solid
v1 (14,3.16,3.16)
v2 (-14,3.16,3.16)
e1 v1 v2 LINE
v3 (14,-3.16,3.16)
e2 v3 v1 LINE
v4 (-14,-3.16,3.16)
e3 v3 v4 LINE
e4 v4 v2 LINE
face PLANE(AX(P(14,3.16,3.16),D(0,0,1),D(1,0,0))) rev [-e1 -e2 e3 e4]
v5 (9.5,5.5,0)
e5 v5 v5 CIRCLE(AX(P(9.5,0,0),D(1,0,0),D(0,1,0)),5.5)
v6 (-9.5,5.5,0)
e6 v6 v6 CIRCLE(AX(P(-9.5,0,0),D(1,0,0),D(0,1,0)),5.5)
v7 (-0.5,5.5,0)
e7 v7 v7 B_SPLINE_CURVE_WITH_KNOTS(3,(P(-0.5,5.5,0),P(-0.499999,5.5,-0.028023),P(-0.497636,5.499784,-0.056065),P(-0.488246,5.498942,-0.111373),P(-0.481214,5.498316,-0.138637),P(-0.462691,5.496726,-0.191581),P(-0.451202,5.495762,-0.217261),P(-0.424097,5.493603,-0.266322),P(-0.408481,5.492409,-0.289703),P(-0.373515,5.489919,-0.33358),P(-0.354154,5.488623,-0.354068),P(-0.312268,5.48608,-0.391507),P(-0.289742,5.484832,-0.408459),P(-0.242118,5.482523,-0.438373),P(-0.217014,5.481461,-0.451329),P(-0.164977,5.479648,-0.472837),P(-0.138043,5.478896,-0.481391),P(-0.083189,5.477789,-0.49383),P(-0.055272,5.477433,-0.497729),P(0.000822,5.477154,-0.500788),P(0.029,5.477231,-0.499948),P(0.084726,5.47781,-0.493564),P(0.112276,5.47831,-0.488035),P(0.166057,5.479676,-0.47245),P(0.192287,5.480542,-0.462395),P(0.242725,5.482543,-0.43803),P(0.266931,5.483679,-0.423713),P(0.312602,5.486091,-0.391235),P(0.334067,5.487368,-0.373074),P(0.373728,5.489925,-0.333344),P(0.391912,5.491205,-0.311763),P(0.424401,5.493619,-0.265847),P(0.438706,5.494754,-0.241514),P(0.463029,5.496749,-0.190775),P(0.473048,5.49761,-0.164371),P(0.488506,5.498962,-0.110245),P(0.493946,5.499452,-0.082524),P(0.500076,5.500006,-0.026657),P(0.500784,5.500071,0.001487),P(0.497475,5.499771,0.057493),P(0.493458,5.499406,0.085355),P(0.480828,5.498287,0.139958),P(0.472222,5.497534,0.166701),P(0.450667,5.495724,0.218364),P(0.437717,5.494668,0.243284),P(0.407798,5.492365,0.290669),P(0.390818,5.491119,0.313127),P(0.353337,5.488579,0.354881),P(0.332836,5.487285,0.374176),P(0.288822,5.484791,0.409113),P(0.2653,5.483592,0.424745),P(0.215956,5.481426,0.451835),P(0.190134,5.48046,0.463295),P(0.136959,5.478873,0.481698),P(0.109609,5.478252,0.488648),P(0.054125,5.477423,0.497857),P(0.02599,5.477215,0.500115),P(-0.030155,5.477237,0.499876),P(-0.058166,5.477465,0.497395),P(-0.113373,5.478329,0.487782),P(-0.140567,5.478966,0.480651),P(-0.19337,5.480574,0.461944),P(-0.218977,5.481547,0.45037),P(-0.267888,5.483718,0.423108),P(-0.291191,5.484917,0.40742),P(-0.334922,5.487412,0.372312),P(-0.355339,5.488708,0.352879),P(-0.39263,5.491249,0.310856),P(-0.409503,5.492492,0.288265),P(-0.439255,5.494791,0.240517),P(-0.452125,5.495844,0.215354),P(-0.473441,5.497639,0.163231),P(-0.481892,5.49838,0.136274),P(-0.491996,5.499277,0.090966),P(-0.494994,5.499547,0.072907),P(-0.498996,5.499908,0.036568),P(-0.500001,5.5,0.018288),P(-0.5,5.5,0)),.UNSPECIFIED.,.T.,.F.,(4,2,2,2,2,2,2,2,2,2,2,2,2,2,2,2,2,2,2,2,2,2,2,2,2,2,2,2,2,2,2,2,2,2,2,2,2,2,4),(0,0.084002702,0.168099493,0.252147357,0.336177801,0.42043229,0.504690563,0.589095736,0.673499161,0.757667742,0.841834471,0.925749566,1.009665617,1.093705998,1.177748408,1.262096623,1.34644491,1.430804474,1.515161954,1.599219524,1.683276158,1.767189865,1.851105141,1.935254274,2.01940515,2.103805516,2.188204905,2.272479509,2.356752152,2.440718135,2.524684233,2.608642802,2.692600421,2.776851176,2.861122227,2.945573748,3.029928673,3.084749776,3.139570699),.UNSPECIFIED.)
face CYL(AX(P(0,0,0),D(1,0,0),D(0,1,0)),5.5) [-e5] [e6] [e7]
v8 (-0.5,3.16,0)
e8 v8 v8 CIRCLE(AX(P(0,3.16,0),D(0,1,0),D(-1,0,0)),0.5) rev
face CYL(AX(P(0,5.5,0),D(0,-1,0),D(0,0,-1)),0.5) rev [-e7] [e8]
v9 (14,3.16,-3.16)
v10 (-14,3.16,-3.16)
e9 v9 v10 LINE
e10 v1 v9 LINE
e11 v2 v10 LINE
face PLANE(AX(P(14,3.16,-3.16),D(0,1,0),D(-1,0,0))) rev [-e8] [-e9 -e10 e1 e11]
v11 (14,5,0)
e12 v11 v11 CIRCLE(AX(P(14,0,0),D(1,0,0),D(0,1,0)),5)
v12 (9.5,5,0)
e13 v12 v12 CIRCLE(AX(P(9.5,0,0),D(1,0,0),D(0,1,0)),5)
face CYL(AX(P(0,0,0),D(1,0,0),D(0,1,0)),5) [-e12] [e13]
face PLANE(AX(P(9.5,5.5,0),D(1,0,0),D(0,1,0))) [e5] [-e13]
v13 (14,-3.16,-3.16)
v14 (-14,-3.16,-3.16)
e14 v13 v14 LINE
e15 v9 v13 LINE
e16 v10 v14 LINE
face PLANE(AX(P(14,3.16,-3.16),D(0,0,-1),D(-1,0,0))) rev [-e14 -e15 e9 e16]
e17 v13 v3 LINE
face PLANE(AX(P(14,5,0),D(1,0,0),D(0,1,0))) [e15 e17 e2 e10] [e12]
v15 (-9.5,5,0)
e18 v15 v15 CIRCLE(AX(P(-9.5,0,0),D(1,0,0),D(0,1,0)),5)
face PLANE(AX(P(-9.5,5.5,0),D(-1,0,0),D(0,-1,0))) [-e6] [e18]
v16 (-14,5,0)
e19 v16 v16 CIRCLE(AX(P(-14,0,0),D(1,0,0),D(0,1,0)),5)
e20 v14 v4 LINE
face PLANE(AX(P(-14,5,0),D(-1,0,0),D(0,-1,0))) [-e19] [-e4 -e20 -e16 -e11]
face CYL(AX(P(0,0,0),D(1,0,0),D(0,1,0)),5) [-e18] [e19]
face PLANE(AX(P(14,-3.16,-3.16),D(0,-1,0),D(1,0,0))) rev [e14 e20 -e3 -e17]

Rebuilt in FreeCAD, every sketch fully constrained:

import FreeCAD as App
import Part
import Sketcher
from FreeCAD import Vector
Q = App.Units.Quantity

doc = App.newDocument("Part")
body = doc.addObject("PartDesign::Body", "Body")

# Sketch on XY plane
sketch1 = doc.addObject("Sketcher::SketchObject", "Sketch")
body.addObject(sketch1)
sketch1.AttachmentSupport = (doc.XY_Plane, [""])
sketch1.MapMode = "FlatFace"
sketch1.addGeometry([
    Part.LineSegment(Vector(9.5, 5.5, 0), Vector(-9.5, 5.5, 0)),  # 0
    Part.LineSegment(Vector(-9.5, 5.5, 0), Vector(-9.5, 5, 0)),  # 1
    Part.LineSegment(Vector(-9.5, 5, 0), Vector(-14, 5, 0)),  # 2
    Part.LineSegment(Vector(-14, 5, 0), Vector(-14, 0, 0)),  # 3
    Part.LineSegment(Vector(-14, 0, 0), Vector(14, 0, 0)),  # 4
    Part.LineSegment(Vector(14, 0, 0), Vector(14, 5, 0)),  # 5
    Part.LineSegment(Vector(14, 5, 0), Vector(9.5, 5, 0)),  # 6
    Part.LineSegment(Vector(9.5, 5, 0), Vector(9.5, 5.5, 0)),  # 7
], False)
sketch1.addConstraint([
    Sketcher.Constraint("Coincident", 0, 2, 1, 1),
    Sketcher.Constraint("Coincident", 1, 2, 2, 1),
    Sketcher.Constraint("Coincident", 2, 2, 3, 1),
    Sketcher.Constraint("Coincident", 3, 2, 4, 1),
    Sketcher.Constraint("Coincident", 4, 2, 5, 1),
    Sketcher.Constraint("Coincident", 5, 2, 6, 1),
    Sketcher.Constraint("Coincident", 6, 2, 7, 1),
    Sketcher.Constraint("Coincident", 7, 2, 0, 1),
    Sketcher.Constraint("Horizontal", 0),
    Sketcher.Constraint("Vertical", 1),
    Sketcher.Constraint("Horizontal", 2),
    Sketcher.Constraint("Vertical", 3),
    Sketcher.Constraint("Horizontal", 4),
    Sketcher.Constraint("Vertical", 5),
    Sketcher.Constraint("Horizontal", 6),
    Sketcher.Constraint("Vertical", 7),
    Sketcher.Constraint("Symmetric", 3, 2, 4, 2, -1, 1),
    Sketcher.Constraint("Symmetric", 1, 2, 6, 2, -2),
    Sketcher.Constraint("DistanceX", 0, 2, 0, 1, Q("19 mm")),
    Sketcher.Constraint("DistanceX", 4, 1, 4, 2, Q("28 mm")),
    Sketcher.Constraint("DistanceY", 3, 2, 3, 1, Q("5 mm")),
    Sketcher.Constraint("DistanceY", 1, 2, 1, 1, Q("0.5 mm")),
])
revolution = doc.addObject("PartDesign::Revolution", "Revolution")
body.addObject(revolution)
revolution.Profile = sketch1
revolution.ReferenceAxis = (sketch1, ["H_Axis"])
revolution.Angle = 360

# Sketch on YZ plane
sketch2 = doc.addObject("Sketcher::SketchObject", "Sketch001")
body.addObject(sketch2)
sketch2.AttachmentSupport = (doc.YZ_Plane, [""])
sketch2.MapMode = "FlatFace"
sketch2.AttachmentOffset = App.Placement(Vector(0, 0, -14), App.Rotation())
sketch2.addGeometry([
    Part.LineSegment(Vector(3, -3, 0), Vector(-3, -3, 0)),
    Part.LineSegment(Vector(-3, -3, 0), Vector(-3, 3, 0)),
    Part.LineSegment(Vector(-3, 3, 0), Vector(3, 3, 0)),
    Part.LineSegment(Vector(3, 3, 0), Vector(3, -3, 0)),
], False)
sketch2.addConstraint([
    Sketcher.Constraint("Coincident", 0, 2, 1, 1),
    Sketcher.Constraint("Coincident", 1, 2, 2, 1),
    Sketcher.Constraint("Coincident", 2, 2, 3, 1),
    Sketcher.Constraint("Coincident", 3, 2, 0, 1),
    Sketcher.Constraint("Horizontal", 0),
    Sketcher.Constraint("Vertical", 1),
    Sketcher.Constraint("Horizontal", 2),
    Sketcher.Constraint("Vertical", 3),
    Sketcher.Constraint("Symmetric", 0, 2, 2, 2, -1, 1),
    Sketcher.Constraint("Equal", 2, 1),
    Sketcher.Constraint("DistanceX", 0, 2, 0, 1, Q("6.32 mm")),
])
pocket1 = doc.addObject("PartDesign::Pocket", "Pocket")
body.addObject(pocket1)
pocket1.Profile = sketch2
pocket1.Type = "ThroughAll"
pocket1.Reversed = True

# Sketch on XZ plane
sketch3 = doc.addObject("Sketcher::SketchObject", "Sketch002")
body.addObject(sketch3)
sketch3.AttachmentSupport = (doc.XZ_Plane, [""])
sketch3.MapMode = "FlatFace"
sketch3.addGeometry(Part.Circle(Vector(0, 0, 0), Vector(0, 0, 1), 0.5), False)
sketch3.addConstraint([
    Sketcher.Constraint("Coincident", 0, 3, -1, 1),
    Sketcher.Constraint("Diameter", 0, Q("1 mm")),
])
pocket2 = doc.addObject("PartDesign::Pocket", "Pocket001")
body.addObject(pocket2)
pocket2.Profile = sketch3
pocket2.Type = "ThroughAll"

doc.recompute()
